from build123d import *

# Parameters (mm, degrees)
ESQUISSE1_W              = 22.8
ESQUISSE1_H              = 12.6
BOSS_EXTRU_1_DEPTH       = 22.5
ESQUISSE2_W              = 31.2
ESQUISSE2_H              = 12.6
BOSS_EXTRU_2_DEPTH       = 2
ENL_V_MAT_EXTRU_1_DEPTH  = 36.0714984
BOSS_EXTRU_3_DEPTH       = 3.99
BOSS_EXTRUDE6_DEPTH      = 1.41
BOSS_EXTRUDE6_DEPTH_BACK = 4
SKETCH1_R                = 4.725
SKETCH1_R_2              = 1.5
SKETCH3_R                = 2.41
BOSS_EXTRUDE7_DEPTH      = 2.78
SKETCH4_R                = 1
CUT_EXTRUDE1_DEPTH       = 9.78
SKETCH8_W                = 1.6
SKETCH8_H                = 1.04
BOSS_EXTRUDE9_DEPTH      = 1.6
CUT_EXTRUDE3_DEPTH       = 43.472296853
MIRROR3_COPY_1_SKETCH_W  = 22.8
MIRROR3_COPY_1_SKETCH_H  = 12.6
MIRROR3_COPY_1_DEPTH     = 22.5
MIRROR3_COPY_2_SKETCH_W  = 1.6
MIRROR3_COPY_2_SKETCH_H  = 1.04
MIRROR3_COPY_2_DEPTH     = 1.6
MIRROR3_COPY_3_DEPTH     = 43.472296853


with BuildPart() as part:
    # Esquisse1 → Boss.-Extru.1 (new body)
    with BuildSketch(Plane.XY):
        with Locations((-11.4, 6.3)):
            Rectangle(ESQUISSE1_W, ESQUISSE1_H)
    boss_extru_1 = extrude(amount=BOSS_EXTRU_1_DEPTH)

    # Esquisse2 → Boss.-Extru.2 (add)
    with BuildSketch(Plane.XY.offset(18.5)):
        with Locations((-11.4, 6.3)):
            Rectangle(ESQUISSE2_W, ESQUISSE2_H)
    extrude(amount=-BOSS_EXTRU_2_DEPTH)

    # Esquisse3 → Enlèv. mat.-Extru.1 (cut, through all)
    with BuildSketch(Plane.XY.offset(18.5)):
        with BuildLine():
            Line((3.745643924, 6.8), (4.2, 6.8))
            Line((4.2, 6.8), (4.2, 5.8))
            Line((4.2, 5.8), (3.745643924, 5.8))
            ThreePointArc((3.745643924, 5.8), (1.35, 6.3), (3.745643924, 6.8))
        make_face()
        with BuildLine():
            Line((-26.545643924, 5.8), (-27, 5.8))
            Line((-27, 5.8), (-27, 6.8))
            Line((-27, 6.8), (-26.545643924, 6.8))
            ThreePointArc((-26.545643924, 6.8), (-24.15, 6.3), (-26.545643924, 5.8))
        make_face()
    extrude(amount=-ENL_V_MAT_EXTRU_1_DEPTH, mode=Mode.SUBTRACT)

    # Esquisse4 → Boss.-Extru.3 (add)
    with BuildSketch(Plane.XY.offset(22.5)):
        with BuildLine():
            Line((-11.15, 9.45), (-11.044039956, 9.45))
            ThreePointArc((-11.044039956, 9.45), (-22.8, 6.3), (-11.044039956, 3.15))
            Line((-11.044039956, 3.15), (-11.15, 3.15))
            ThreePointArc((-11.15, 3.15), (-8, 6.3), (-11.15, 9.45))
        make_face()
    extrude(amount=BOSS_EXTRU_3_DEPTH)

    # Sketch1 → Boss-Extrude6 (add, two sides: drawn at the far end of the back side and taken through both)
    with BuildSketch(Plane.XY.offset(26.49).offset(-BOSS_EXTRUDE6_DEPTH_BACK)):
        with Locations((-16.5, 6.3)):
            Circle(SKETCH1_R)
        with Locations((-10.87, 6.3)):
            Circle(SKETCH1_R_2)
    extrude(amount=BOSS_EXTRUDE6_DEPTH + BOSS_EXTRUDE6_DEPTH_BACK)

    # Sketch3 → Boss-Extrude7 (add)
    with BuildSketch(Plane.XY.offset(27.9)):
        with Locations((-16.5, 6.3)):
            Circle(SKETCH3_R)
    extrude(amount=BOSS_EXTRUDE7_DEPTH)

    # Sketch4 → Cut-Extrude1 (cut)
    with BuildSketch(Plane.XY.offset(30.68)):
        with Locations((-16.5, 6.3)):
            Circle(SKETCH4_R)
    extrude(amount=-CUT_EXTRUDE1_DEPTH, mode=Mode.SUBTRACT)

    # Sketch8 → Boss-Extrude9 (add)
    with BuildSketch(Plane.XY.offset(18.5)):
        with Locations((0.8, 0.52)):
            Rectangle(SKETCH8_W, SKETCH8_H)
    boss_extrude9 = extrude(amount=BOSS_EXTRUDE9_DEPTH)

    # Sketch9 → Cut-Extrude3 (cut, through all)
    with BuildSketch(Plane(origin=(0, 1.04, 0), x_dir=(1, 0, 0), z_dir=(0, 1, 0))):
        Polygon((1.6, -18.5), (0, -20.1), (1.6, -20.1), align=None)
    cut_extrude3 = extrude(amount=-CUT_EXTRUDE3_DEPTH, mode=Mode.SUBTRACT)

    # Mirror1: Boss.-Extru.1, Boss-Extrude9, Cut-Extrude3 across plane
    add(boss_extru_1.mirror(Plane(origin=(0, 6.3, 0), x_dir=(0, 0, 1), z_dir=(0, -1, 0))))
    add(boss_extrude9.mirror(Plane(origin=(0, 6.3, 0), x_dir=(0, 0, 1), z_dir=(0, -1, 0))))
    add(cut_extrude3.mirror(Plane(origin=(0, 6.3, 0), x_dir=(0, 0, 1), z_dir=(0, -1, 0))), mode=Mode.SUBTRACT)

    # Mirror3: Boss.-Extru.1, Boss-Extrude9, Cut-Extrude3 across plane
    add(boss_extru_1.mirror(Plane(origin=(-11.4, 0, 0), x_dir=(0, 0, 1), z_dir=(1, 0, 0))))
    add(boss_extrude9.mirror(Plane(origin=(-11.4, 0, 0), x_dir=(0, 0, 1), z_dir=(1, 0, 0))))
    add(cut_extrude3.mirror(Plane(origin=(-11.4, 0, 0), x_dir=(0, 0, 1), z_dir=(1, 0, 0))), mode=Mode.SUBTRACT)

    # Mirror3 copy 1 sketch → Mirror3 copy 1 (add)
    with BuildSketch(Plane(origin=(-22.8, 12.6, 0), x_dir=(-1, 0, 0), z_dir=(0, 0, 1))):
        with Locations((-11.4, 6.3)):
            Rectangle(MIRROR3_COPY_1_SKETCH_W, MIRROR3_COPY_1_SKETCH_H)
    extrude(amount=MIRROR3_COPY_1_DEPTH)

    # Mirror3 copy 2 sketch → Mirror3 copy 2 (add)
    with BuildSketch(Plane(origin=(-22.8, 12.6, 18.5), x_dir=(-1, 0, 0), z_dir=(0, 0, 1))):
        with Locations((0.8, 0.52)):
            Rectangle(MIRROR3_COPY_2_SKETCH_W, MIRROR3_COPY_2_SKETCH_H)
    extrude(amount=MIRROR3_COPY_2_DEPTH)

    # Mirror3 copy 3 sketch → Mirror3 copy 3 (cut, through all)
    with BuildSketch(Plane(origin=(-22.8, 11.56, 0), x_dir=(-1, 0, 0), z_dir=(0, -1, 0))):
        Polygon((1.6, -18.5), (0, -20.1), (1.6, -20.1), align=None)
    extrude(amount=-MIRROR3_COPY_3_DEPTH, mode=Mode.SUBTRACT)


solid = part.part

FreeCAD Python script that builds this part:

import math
import FreeCAD as App
import Part
import Sketcher
Q = App.Units.Quantity

doc = App.newDocument("Part")
body = doc.addObject("PartDesign::Body", "Body")

# Sketch on XY plane
sketch1 = body.newObject("Sketcher::SketchObject", "Sketch")
sketch1.AttachmentSupport = (doc.getObject("XY_Plane"), [""])
sketch1.MapMode = "FlatFace"
sketch1.addGeometry([
    Part.LineSegment(App.Vector(-23, 13, 0), App.Vector(-23, 0, 0)),
    Part.LineSegment(App.Vector(-23, 0, 0), App.Vector(0, 0, 0)),
    Part.LineSegment(App.Vector(0, 0, 0), App.Vector(0, 13, 0)),
    Part.LineSegment(App.Vector(0, 13, 0), App.Vector(-23, 13, 0)),
], False)
sketch1.addConstraint([
    Sketcher.Constraint("Coincident", 0, 2, 1, 1),
    Sketcher.Constraint("Coincident", 1, 2, 2, 1),
    Sketcher.Constraint("Coincident", 2, 2, 3, 1),
    Sketcher.Constraint("Coincident", 3, 2, 0, 1),
    Sketcher.Constraint("Vertical", 0),
    Sketcher.Constraint("Horizontal", 1),
    Sketcher.Constraint("Vertical", 2),
    Sketcher.Constraint("Horizontal", 3),
    Sketcher.Constraint("Coincident", 1, 2, -1, 1),
    Sketcher.Constraint("DistanceX", 1, 1, 1, 2, Q("22.8 mm")),
    Sketcher.Constraint("DistanceY", 0, 2, 0, 1, Q("12.6 mm")),
])
pad1 = body.newObject("PartDesign::Pad", "Pad")
pad1.Profile = sketch1
pad1.Length = 22.5

# Sketch on XY plane
sketch2 = body.newObject("Sketcher::SketchObject", "Sketch001")
sketch2.AttachmentSupport = (doc.getObject("XY_Plane"), [""])
sketch2.MapMode = "FlatFace"
sketch2.AttachmentOffset = App.Placement(App.Vector(0, 0, 18.5), App.Rotation())
sketch2.addGeometry([
    Part.LineSegment(App.Vector(-27, 13, 0), App.Vector(-27, 0, 0)),
    Part.LineSegment(App.Vector(-27, 0, 0), App.Vector(4, 0, 0)),
    Part.LineSegment(App.Vector(4, 0, 0), App.Vector(4, 13, 0)),
    Part.LineSegment(App.Vector(4, 13, 0), App.Vector(-27, 13, 0)),
], False)
sketch2.addConstraint([
    Sketcher.Constraint("Coincident", 0, 2, 1, 1),
    Sketcher.Constraint("Coincident", 1, 2, 2, 1),
    Sketcher.Constraint("Coincident", 2, 2, 3, 1),
    Sketcher.Constraint("Coincident", 3, 2, 0, 1),
    Sketcher.Constraint("Vertical", 0),
    Sketcher.Constraint("Horizontal", 1),
    Sketcher.Constraint("Vertical", 2),
    Sketcher.Constraint("Horizontal", 3),
    Sketcher.Constraint("PointOnObject", 0, 2, -1),
    Sketcher.Constraint("DistanceX", 1, 1, 1, 2, Q("31.2 mm")),
    Sketcher.Constraint("DistanceY", 0, 2, 0, 1, Q("12.6 mm")),
    Sketcher.Constraint("DistanceX", 0, 2, -1, 1, Q("27 mm")),
])
pad2 = body.newObject("PartDesign::Pad", "Pad001")
pad2.Profile = sketch2
pad2.Length = 2
pad2.Reversed = True

# Sketch on XY plane
sketch3 = body.newObject("Sketcher::SketchObject", "Sketch002")
sketch3.AttachmentSupport = (doc.getObject("XY_Plane"), [""])
sketch3.MapMode = "FlatFace"
sketch3.AttachmentOffset = App.Placement(App.Vector(0, 0, 18.5), App.Rotation())
sketch3.addGeometry([
    Part.LineSegment(App.Vector(4.2, 6.8, 0), App.Vector(3.75, 6.8, 0)),  # 0
    Part.ArcOfCircle(Part.Circle(App.Vector(2.6, 6.3, 0), App.Vector(0, 0, 1), 1.25), math.radians(24), math.radians(336)),  # 1
    Part.LineSegment(App.Vector(3.75, 5.8, 0), App.Vector(4.2, 5.8, 0)),  # 2
    Part.LineSegment(App.Vector(4.2, 5.8, 0), App.Vector(4.2, 6.8, 0)),  # 3
    Part.LineSegment(App.Vector(-27, 5.8, 0), App.Vector(-26.55, 5.8, 0)),  # 4
    Part.ArcOfCircle(Part.Circle(App.Vector(-25.4, 6.3, 0), App.Vector(0, 0, 1), 1.25), math.radians(-156), math.radians(156)),  # 5
    Part.LineSegment(App.Vector(-26.55, 6.8, 0), App.Vector(-27, 6.8, 0)),  # 6
    Part.LineSegment(App.Vector(-27, 6.8, 0), App.Vector(-27, 5.8, 0)),  # 7
], False)
sketch3.addConstraint([
    Sketcher.Constraint("Coincident", 0, 2, 1, 1),
    Sketcher.Constraint("Coincident", 1, 2, 2, 1),
    Sketcher.Constraint("Coincident", 2, 2, 3, 1),
    Sketcher.Constraint("Coincident", 3, 2, 0, 1),
    Sketcher.Constraint("Coincident", 4, 2, 5, 1),
    Sketcher.Constraint("Coincident", 5, 2, 6, 1),
    Sketcher.Constraint("Coincident", 6, 2, 7, 1),
    Sketcher.Constraint("Coincident", 7, 2, 4, 1),
    Sketcher.Constraint("Horizontal", 0),
    Sketcher.Constraint("Horizontal", 2),
    Sketcher.Constraint("Vertical", 3),
    Sketcher.Constraint("Horizontal", 4),
    Sketcher.Constraint("Horizontal", 6),
    Sketcher.Constraint("Vertical", 7),
    Sketcher.Constraint("Equal", 1, 5),
    Sketcher.Constraint("Horizontal", 1, 3, 5, 3),
    Sketcher.Constraint("Horizontal", 2, 2, 4, 2),
    Sketcher.Constraint("Horizontal", 3, 2, 5, 2),
    Sketcher.Constraint("Vertical", 0, 2, 1, 2),
    Sketcher.Constraint("Equal", 2, 4),
    Sketcher.Constraint("DistanceY", 3, 1, 3, 2, Q("1 mm")),
    Sketcher.Constraint("Radius", 1, Q("1.25 mm")),
    Sketcher.Constraint("DistanceX", 6, 2, -1, 1, Q("27 mm")),
    Sketcher.Constraint("DistanceX", 5, 3, 1, 3, Q("28 mm")),
    Sketcher.Constraint("DistanceX", -1, 1, 1, 3, Q("2.6 mm")),
    Sketcher.Constraint("DistanceY", -1, 1, 1, 3, Q("6.3 mm")),
])
pocket1 = body.newObject("PartDesign::Pocket", "Pocket")
pocket1.Profile = sketch3
pocket1.Type = "ThroughAll"

# Sketch on XY plane
sketch4 = body.newObject("Sketcher::SketchObject", "Sketch003")
sketch4.AttachmentSupport = (doc.getObject("XY_Plane"), [""])
sketch4.MapMode = "FlatFace"
sketch4.AttachmentOffset = App.Placement(App.Vector(0, 0, 22.5), App.Rotation())
sketch4.addGeometry([
    Part.LineSegment(App.Vector(-11.15, 9.45, 0), App.Vector(-11.04, 9.45, 0)),
    Part.ArcOfCircle(Part.Circle(App.Vector(-16.5, 6.3, 0), App.Vector(0, 0, 1), 6.3), math.radians(30), math.radians(330)),
    Part.LineSegment(App.Vector(-11.04, 3.15, 0), App.Vector(-11.15, 3.15, 0)),
    Part.ArcOfCircle(Part.Circle(App.Vector(-11.15, 6.3, 0), App.Vector(0, 0, 1), 3.15), math.radians(-90), math.radians(90)),
], False)
sketch4.addConstraint([
    Sketcher.Constraint("Coincident", 0, 2, 1, 1),
    Sketcher.Constraint("Coincident", 1, 2, 2, 1),
    Sketcher.Constraint("Tangent", 2, 2, 3, 1),
    Sketcher.Constraint("Tangent", 3, 2, 0, 1),
    Sketcher.Constraint("Horizontal", 0),
    Sketcher.Constraint("Horizontal", 2),
    Sketcher.Constraint("Horizontal", 1, 3, 3, 3),
    Sketcher.Constraint("Radius", 1, Q("6.3 mm")),
    Sketcher.Constraint("Radius", 3, Q("3.15 mm")),
    Sketcher.Constraint("DistanceX", 1, 3, -1, 1, Q("16.5 mm")),
    Sketcher.Constraint("DistanceY", -1, 1, 1, 3, Q("6.3 mm")),
    Sketcher.Constraint("DistanceX", 3, 3, -1, 1, Q("11.15 mm")),
])
pad3 = body.newObject("PartDesign::Pad", "Pad002")
pad3.Profile = sketch4
pad3.Length = 3.99

# Sketch on XY plane
sketch5 = body.newObject("Sketcher::SketchObject", "Sketch004")
sketch5.AttachmentSupport = (doc.getObject("XY_Plane"), [""])
sketch5.MapMode = "FlatFace"
sketch5.AttachmentOffset = App.Placement(App.Vector(0, 0, 26.49), App.Rotation())
sketch5.addGeometry([
    Part.ArcOfCircle(Part.Circle(App.Vector(-16.5, 6.3, 0), App.Vector(0, 0, 1), 4.7), math.radians(13), math.radians(347)),
    Part.ArcOfCircle(Part.Circle(App.Vector(-10.9, 6.3, 0), App.Vector(0, 0, 1), 1.5), math.radians(-133), math.radians(133)),
], False)
sketch5.addConstraint([
    Sketcher.Constraint("Coincident", 0, 1, 1, 2),
    Sketcher.Constraint("Coincident", 1, 1, 0, 2),
    Sketcher.Constraint("Horizontal", 0, 3, 1, 3),
    Sketcher.Constraint("Radius", 1, Q("1.5 mm")),
    Sketcher.Constraint("Radius", 0, Q("4.725 mm")),
    Sketcher.Constraint("DistanceX", 0, 3, -1, 1, Q("16.5 mm")),
    Sketcher.Constraint("DistanceY", -1, 1, 0, 3, Q("6.3 mm")),
    Sketcher.Constraint("DistanceX", 1, 3, -1, 1, Q("10.87 mm")),
])
pad4 = body.newObject("PartDesign::Pad", "Pad003")
pad4.Profile = sketch5
pad4.Type = "TwoLengths"
pad4.Length = 1.41
pad4.Length2 = 4

# Sketch on XY plane
sketch6 = body.newObject("Sketcher::SketchObject", "Sketch005")
sketch6.AttachmentSupport = (doc.getObject("XY_Plane"), [""])
sketch6.MapMode = "FlatFace"
sketch6.AttachmentOffset = App.Placement(App.Vector(0, 0, 27.9), App.Rotation())
sketch6.addGeometry(Part.Circle(App.Vector(-16.5, 6.3, 0), App.Vector(0, 0, 1), 2.4), False)
sketch6.addConstraint([
    Sketcher.Constraint("Diameter", 0, Q("4.82 mm")),
    Sketcher.Constraint("DistanceX", 0, 3, -1, 1, Q("16.5 mm")),
    Sketcher.Constraint("DistanceY", -1, 1, 0, 3, Q("6.3 mm")),
])
pad5 = body.newObject("PartDesign::Pad", "Pad004")
pad5.Profile = sketch6
pad5.Length = 2.78

# Sketch on XY plane
sketch7 = body.newObject("Sketcher::SketchObject", "Sketch006")
sketch7.AttachmentSupport = (doc.getObject("XY_Plane"), [""])
sketch7.MapMode = "FlatFace"
sketch7.AttachmentOffset = App.Placement(App.Vector(0, 0, 30.68), App.Rotation())
sketch7.addGeometry(Part.Circle(App.Vector(-16.5, 6.3, 0), App.Vector(0, 0, 1), 1), False)
sketch7.addConstraint([
    Sketcher.Constraint("Diameter", 0, Q("2 mm")),
    Sketcher.Constraint("DistanceX", 0, 3, -1, 1, Q("16.5 mm")),
    Sketcher.Constraint("DistanceY", -1, 1, 0, 3, Q("6.3 mm")),
])
pocket2 = body.newObject("PartDesign::Pocket", "Pocket001")
pocket2.Profile = sketch7
pocket2.Length = 9.78

# Sketch on XY plane
sketch8 = body.newObject("Sketcher::SketchObject", "Sketch007")
sketch8.AttachmentSupport = (doc.getObject("XY_Plane"), [""])
sketch8.MapMode = "FlatFace"
sketch8.AttachmentOffset = App.Placement(App.Vector(0, 0, 18.5), App.Rotation())
sketch8.addGeometry([
    Part.LineSegment(App.Vector(0, 1, 0), App.Vector(0, 0, 0)),
    Part.LineSegment(App.Vector(0, 0, 0), App.Vector(1.6, 0, 0)),
    Part.LineSegment(App.Vector(1.6, 0, 0), App.Vector(1.6, 1, 0)),
    Part.LineSegment(App.Vector(1.6, 1, 0), App.Vector(0, 1, 0)),
], False)
sketch8.addConstraint([
    Sketcher.Constraint("Coincident", 0, 2, 1, 1),
    Sketcher.Constraint("Coincident", 1, 2, 2, 1),
    Sketcher.Constraint("Coincident", 2, 2, 3, 1),
    Sketcher.Constraint("Coincident", 3, 2, 0, 1),
    Sketcher.Constraint("Vertical", 0),
    Sketcher.Constraint("Horizontal", 1),
    Sketcher.Constraint("Vertical", 2),
    Sketcher.Constraint("Horizontal", 3),
    Sketcher.Constraint("Coincident", 0, 2, -1, 1),
    Sketcher.Constraint("DistanceX", 1, 1, 1, 2, Q("1.6 mm")),
    Sketcher.Constraint("DistanceY", 0, 2, 0, 1, Q("1.04 mm")),
])
pad6 = body.newObject("PartDesign::Pad", "Pad005")
pad6.Profile = sketch8
pad6.Length = 1.6

# Sketch on XZ plane
sketch9 = body.newObject("Sketcher::SketchObject", "Sketch008")
sketch9.AttachmentSupport = (doc.getObject("XZ_Plane"), [""])
sketch9.MapMode = "FlatFace"
sketch9.AttachmentOffset = App.Placement(App.Vector(0, 0, -1.04), App.Rotation())
sketch9.addGeometry([
    Part.LineSegment(App.Vector(1.6, 18.5, 0), App.Vector(0, 20.1, 0)),
    Part.LineSegment(App.Vector(0, 20.1, 0), App.Vector(1.6, 20.1, 0)),
    Part.LineSegment(App.Vector(1.6, 20.1, 0), App.Vector(1.6, 18.5, 0)),
], False)
sketch9.addConstraint([
    Sketcher.Constraint("Coincident", 0, 2, 1, 1),
    Sketcher.Constraint("Coincident", 1, 2, 2, 1),
    Sketcher.Constraint("Coincident", 2, 2, 0, 1),
    Sketcher.Constraint("Horizontal", 1),
    Sketcher.Constraint("Vertical", 2),
    Sketcher.Constraint("PointOnObject", 0, 2, -2),
    Sketcher.Constraint("Equal", 1, 2),
    Sketcher.Constraint("DistanceX", 1, 1, 1, 2, Q("1.6 mm")),
    Sketcher.Constraint("DistanceY", -1, 1, 0, 2, Q("20.1 mm")),
])
pocket3 = body.newObject("PartDesign::Pocket", "Pocket002")
pocket3.Profile = sketch9
pocket3.Type = "ThroughAll"
pocket3.Reversed = True
doc.recompute()

datumplane = body.newObject("PartDesign::Plane", "DatumPlane")
datumplane.AttachmentSupport = (doc.getObject("XZ_Plane"), [""])
datumplane.MapMode = "FlatFace"
datumplane.AttachmentOffset = App.Placement(App.Vector(0, 0, -6.3), App.Rotation())
mirrored = body.newObject("PartDesign::Mirrored", "Mirrored")
mirrored.Originals = [pad1, pad6, pocket3]
mirrored.MirrorPlane = (datumplane, [""])
body.Tip = mirrored
doc.recompute()

datumplane2 = body.newObject("PartDesign::Plane", "DatumPlane001")
datumplane2.AttachmentSupport = (doc.getObject("YZ_Plane"), [""])
datumplane2.MapMode = "FlatFace"
datumplane2.AttachmentOffset = App.Placement(App.Vector(0, 0, -11.4), App.Rotation())
mirrored2 = body.newObject("PartDesign::Mirrored", "Mirrored001")
mirrored2.Originals = [pad1, pad6, pocket3]
mirrored2.MirrorPlane = (datumplane2, [""])
body.Tip = mirrored2

# Sketch on XY plane
sketch10 = body.newObject("Sketcher::SketchObject", "Sketch009")
sketch10.AttachmentSupport = (doc.getObject("XY_Plane"), [""])
sketch10.MapMode = "FlatFace"
sketch10.addGeometry([
    Part.LineSegment(App.Vector(0, 0, 0), App.Vector(0, 13, 0)),
    Part.LineSegment(App.Vector(0, 13, 0), App.Vector(-23, 13, 0)),
    Part.LineSegment(App.Vector(-23, 13, 0), App.Vector(-23, 0, 0)),
    Part.LineSegment(App.Vector(-23, 0, 0), App.Vector(0, 0, 0)),
], False)
sketch10.addConstraint([
    Sketcher.Constraint("Coincident", 0, 2, 1, 1),
    Sketcher.Constraint("Coincident", 1, 2, 2, 1),
    Sketcher.Constraint("Coincident", 2, 2, 3, 1),
    Sketcher.Constraint("Coincident", 3, 2, 0, 1),
    Sketcher.Constraint("Vertical", 0),
    Sketcher.Constraint("Horizontal", 1),
    Sketcher.Constraint("Vertical", 2),
    Sketcher.Constraint("Horizontal", 3),
    Sketcher.Constraint("Coincident", 3, 2, -1, 1),
    Sketcher.Constraint("DistanceX", 1, 2, 1, 1, Q("22.8 mm")),
    Sketcher.Constraint("DistanceY", 0, 1, 0, 2, Q("12.6 mm")),
])
pad7 = body.newObject("PartDesign::Pad", "Pad006")
pad7.Profile = sketch10
pad7.Length = 22.5

# Sketch on XY plane
sketch11 = body.newObject("Sketcher::SketchObject", "Sketch010")
sketch11.AttachmentSupport = (doc.getObject("XY_Plane"), [""])
sketch11.MapMode = "FlatFace"
sketch11.AttachmentOffset = App.Placement(App.Vector(0, 0, 18.5), App.Rotation())
sketch11.addGeometry([
    Part.LineSegment(App.Vector(-22.8, 11.6, 0), App.Vector(-22.8, 12.6, 0)),
    Part.LineSegment(App.Vector(-22.8, 12.6, 0), App.Vector(-24.4, 12.6, 0)),
    Part.LineSegment(App.Vector(-24.4, 12.6, 0), App.Vector(-24.4, 11.6, 0)),
    Part.LineSegment(App.Vector(-24.4, 11.6, 0), App.Vector(-22.8, 11.6, 0)),
], False)
sketch11.addConstraint([
    Sketcher.Constraint("Coincident", 0, 2, 1, 1),
    Sketcher.Constraint("Coincident", 1, 2, 2, 1),
    Sketcher.Constraint("Coincident", 2, 2, 3, 1),
    Sketcher.Constraint("Coincident", 3, 2, 0, 1),
    Sketcher.Constraint("Vertical", 0),
    Sketcher.Constraint("Horizontal", 1),
    Sketcher.Constraint("Vertical", 2),
    Sketcher.Constraint("Horizontal", 3),
    Sketcher.Constraint("DistanceX", 1, 2, 1, 1, Q("1.6 mm")),
    Sketcher.Constraint("DistanceY", 0, 1, 0, 2, Q("1.04 mm")),
    Sketcher.Constraint("DistanceX", 0, 2, -1, 1, Q("22.8 mm")),
    Sketcher.Constraint("DistanceY", -1, 1, 0, 2, Q("12.6 mm")),
])
pad8 = body.newObject("PartDesign::Pad", "Pad007")
pad8.Profile = sketch11
pad8.Length = 1.6

# Sketch on XZ plane
sketch12 = body.newObject("Sketcher::SketchObject", "Sketch011")
sketch12.AttachmentSupport = (doc.getObject("XZ_Plane"), [""])
sketch12.MapMode = "FlatFace"
sketch12.AttachmentOffset = App.Placement(App.Vector(0, 0, -11.56), App.Rotation())
sketch12.addGeometry([
    Part.LineSegment(App.Vector(-24.4, 18.5, 0), App.Vector(-22.8, 20.1, 0)),
    Part.LineSegment(App.Vector(-22.8, 20.1, 0), App.Vector(-24.4, 20.1, 0)),
    Part.LineSegment(App.Vector(-24.4, 20.1, 0), App.Vector(-24.4, 18.5, 0)),
], False)
sketch12.addConstraint([
    Sketcher.Constraint("Coincident", 0, 2, 1, 1),
    Sketcher.Constraint("Coincident", 1, 2, 2, 1),
    Sketcher.Constraint("Coincident", 2, 2, 0, 1),
    Sketcher.Constraint("Horizontal", 1),
    Sketcher.Constraint("Vertical", 2),
    Sketcher.Constraint("Equal", 1, 2),
    Sketcher.Constraint("DistanceX", 1, 2, 1, 1, Q("1.6 mm")),
    Sketcher.Constraint("DistanceX", 0, 2, -1, 1, Q("22.8 mm")),
    Sketcher.Constraint("DistanceY", -1, 1, 0, 2, Q("20.1 mm")),
])
pocket4 = body.newObject("PartDesign::Pocket", "Pocket003")
pocket4.Profile = sketch12
pocket4.Type = "ThroughAll"

doc.recompute()
